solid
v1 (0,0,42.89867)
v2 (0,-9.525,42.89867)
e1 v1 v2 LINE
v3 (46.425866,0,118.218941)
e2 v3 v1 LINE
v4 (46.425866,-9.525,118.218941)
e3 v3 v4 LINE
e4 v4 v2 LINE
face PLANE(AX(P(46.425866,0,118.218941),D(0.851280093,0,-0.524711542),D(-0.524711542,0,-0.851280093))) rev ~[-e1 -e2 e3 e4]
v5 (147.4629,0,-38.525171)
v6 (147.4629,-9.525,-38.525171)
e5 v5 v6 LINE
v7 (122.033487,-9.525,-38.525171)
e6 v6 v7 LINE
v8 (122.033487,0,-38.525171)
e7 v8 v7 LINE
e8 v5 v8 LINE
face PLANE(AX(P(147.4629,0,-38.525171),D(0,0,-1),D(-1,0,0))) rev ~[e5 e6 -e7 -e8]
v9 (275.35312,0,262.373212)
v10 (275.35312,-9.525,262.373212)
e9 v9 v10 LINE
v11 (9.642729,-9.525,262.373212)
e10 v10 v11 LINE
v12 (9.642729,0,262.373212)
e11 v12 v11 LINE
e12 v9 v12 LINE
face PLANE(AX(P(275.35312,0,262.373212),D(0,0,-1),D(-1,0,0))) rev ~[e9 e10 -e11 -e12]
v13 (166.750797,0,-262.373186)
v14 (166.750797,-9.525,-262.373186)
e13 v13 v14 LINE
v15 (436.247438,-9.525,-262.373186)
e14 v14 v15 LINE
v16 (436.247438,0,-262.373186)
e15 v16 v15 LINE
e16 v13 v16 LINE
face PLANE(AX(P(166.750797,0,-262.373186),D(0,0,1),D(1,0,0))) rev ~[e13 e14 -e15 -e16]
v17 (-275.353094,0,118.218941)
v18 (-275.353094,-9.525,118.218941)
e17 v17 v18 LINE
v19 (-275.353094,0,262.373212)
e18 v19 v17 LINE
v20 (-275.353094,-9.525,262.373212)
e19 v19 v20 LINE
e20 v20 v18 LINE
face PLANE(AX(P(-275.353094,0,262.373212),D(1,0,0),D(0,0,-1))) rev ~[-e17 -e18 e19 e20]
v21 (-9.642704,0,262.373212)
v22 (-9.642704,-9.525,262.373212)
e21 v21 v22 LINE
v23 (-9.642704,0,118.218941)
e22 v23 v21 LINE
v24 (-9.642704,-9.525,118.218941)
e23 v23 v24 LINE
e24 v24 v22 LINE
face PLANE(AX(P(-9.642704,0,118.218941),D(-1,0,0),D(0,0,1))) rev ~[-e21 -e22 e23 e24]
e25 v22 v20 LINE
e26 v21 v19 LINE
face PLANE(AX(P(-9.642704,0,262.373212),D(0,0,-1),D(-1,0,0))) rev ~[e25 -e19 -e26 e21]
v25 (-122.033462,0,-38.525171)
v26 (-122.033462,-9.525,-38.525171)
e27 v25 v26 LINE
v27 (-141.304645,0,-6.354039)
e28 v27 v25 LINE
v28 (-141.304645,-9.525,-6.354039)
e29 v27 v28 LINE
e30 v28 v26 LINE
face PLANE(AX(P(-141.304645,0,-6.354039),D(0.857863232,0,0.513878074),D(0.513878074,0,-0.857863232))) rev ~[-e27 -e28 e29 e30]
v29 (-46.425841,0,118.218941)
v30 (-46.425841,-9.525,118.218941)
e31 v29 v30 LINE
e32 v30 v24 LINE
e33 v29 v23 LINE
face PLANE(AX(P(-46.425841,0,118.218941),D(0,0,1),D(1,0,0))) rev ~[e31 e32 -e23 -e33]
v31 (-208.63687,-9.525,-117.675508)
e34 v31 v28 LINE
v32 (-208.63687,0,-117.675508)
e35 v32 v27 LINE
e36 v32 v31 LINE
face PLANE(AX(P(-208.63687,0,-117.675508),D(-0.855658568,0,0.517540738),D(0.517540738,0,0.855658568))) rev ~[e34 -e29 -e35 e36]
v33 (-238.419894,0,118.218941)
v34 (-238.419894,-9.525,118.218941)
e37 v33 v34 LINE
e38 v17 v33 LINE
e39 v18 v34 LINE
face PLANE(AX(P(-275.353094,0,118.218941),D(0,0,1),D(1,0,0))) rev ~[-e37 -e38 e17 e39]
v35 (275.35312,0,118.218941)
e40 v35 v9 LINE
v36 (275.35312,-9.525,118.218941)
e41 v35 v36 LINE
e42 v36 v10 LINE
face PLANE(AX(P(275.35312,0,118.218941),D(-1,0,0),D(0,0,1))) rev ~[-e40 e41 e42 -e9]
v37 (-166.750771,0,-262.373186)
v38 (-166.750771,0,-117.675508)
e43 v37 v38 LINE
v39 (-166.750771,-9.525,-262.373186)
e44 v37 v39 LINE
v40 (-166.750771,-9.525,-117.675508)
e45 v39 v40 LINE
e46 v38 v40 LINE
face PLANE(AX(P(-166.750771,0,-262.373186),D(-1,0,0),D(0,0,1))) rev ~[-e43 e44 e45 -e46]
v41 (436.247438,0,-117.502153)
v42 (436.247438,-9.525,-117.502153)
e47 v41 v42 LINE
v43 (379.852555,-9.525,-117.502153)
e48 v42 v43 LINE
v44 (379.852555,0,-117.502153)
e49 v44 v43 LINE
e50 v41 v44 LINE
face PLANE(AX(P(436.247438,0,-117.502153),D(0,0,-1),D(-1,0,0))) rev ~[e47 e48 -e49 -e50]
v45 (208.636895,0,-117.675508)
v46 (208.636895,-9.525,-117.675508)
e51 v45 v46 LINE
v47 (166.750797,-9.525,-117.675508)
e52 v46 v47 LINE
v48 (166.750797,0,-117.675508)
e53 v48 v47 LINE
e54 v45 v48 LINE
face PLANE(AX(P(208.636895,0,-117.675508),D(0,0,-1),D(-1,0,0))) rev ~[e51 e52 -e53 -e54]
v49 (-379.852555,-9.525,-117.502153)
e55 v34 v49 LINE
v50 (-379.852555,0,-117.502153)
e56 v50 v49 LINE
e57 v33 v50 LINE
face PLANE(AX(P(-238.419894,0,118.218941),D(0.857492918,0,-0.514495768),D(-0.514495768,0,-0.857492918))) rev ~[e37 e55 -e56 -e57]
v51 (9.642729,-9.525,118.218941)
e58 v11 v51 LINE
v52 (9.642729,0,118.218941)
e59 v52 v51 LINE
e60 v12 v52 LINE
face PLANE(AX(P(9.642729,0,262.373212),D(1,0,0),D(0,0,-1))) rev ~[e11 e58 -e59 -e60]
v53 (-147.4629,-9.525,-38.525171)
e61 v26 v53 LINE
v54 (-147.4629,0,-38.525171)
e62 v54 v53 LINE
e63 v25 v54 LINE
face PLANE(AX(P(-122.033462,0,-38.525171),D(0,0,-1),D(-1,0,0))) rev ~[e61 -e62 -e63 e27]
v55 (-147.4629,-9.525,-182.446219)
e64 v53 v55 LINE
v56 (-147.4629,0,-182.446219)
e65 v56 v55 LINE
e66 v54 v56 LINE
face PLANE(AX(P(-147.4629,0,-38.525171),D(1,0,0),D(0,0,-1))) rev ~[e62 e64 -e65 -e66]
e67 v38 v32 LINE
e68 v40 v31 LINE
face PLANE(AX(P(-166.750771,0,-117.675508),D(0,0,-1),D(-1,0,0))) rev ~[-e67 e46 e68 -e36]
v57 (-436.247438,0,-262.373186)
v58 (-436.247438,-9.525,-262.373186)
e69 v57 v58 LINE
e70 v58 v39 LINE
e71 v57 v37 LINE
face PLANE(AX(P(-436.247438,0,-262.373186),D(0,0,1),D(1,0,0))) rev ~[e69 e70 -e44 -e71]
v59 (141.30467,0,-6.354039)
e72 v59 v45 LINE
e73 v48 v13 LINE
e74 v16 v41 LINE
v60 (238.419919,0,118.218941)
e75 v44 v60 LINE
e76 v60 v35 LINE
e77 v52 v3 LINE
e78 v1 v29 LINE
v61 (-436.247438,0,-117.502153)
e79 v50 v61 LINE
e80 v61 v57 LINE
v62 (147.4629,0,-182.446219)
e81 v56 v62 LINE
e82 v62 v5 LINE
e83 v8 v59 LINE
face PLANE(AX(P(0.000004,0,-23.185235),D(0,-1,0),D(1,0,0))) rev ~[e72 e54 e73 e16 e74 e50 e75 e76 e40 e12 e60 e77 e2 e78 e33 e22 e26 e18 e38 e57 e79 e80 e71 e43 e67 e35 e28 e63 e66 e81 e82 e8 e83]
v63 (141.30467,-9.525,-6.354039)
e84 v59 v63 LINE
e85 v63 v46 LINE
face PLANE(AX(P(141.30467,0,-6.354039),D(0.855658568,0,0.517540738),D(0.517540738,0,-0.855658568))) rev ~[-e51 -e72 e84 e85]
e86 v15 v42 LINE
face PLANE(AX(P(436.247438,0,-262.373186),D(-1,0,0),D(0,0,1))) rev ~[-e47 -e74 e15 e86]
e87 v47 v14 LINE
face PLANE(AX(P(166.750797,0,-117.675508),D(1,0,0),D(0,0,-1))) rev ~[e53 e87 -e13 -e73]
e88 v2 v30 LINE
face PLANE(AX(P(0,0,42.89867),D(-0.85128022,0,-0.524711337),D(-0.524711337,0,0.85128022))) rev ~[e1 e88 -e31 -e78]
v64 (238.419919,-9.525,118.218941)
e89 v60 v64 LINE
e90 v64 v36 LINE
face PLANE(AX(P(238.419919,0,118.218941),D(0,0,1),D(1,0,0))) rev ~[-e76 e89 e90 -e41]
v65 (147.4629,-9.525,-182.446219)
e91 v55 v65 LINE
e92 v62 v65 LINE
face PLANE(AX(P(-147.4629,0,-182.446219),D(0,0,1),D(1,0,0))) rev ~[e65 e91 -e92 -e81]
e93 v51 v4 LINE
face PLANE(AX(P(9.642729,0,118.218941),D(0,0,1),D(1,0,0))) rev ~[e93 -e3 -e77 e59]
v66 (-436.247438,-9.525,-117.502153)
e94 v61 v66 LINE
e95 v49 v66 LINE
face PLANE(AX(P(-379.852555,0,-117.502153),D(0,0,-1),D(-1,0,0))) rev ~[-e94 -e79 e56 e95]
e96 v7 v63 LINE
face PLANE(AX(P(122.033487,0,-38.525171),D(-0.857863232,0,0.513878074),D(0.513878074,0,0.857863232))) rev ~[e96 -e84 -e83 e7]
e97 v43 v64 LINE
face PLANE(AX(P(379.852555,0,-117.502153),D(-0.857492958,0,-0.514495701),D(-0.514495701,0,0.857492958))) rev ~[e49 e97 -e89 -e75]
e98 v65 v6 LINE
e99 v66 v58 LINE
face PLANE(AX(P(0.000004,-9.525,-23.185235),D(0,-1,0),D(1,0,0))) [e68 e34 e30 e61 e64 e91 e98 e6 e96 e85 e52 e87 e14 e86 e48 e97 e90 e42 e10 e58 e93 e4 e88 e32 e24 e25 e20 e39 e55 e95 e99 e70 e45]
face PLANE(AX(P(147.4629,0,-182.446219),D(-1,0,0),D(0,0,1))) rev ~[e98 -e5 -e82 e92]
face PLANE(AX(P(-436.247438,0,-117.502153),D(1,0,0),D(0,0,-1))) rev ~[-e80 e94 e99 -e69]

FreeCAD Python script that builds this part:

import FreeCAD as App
import Part
import Sketcher
from FreeCAD import Vector

doc = App.newDocument("Part")
params = doc.addObject("Spreadsheet::Sheet", "Params")
for row, (alias, value) in enumerate([
    ("pad1_length", "0.375 in"),
], start=1):
    params.set(f"A{row}", alias)
    params.set(f"B{row}", "=" + value)
    params.setAlias(f"B{row}", alias)

body = doc.addObject("PartDesign::Body", "Body")

# Sketch on XZ plane
sketch1 = doc.addObject("Sketcher::SketchObject", "Sketch")
body.addObject(sketch1)
sketch1.AttachmentSupport = (doc.XZ_Plane, [""])
sketch1.MapMode = "FlatFace"
sketch1.addGeometry([
    Part.LineSegment(Vector(46, 118, 0), Vector(0, 43, 0)),  # 0
    Part.LineSegment(Vector(0, 43, 0), Vector(-46, 118, 0)),  # 1
    Part.LineSegment(Vector(-46, 118, 0), Vector(-10, 118, 0)),  # 2
    Part.LineSegment(Vector(-10, 118, 0), Vector(-10, 262, 0)),  # 3
    Part.LineSegment(Vector(-10, 262, 0), Vector(-275, 262, 0)),  # 4
    Part.LineSegment(Vector(-275, 262, 0), Vector(-275, 118, 0)),  # 5
    Part.LineSegment(Vector(-275, 118, 0), Vector(-238, 118, 0)),  # 6
    Part.LineSegment(Vector(-238, 118, 0), Vector(-380, -118, 0)),  # 7
    Part.LineSegment(Vector(-380, -118, 0), Vector(-436, -118, 0)),  # 8
    Part.LineSegment(Vector(-436, -118, 0), Vector(-436, -262, 0)),  # 9
    Part.LineSegment(Vector(-436, -262, 0), Vector(-167, -262, 0)),  # 10
    Part.LineSegment(Vector(-167, -262, 0), Vector(-167, -118, 0)),  # 11
    Part.LineSegment(Vector(-167, -118, 0), Vector(-209, -118, 0)),  # 12
    Part.LineSegment(Vector(-209, -118, 0), Vector(-141, -6, 0)),  # 13
    Part.LineSegment(Vector(-141, -6, 0), Vector(-122, -39, 0)),  # 14
    Part.LineSegment(Vector(-122, -39, 0), Vector(-147, -39, 0)),  # 15
    Part.LineSegment(Vector(-147, -39, 0), Vector(-147, -182, 0)),  # 16
    Part.LineSegment(Vector(-147, -182, 0), Vector(147, -182, 0)),  # 17
    Part.LineSegment(Vector(147, -182, 0), Vector(147, -39, 0)),  # 18
    Part.LineSegment(Vector(147, -39, 0), Vector(122, -39, 0)),  # 19
    Part.LineSegment(Vector(122, -39, 0), Vector(141, -6, 0)),  # 20
    Part.LineSegment(Vector(141, -6, 0), Vector(209, -118, 0)),  # 21
    Part.LineSegment(Vector(209, -118, 0), Vector(167, -118, 0)),  # 22
    Part.LineSegment(Vector(167, -118, 0), Vector(167, -262, 0)),  # 23
    Part.LineSegment(Vector(167, -262, 0), Vector(436, -262, 0)),  # 24
    Part.LineSegment(Vector(436, -262, 0), Vector(436, -118, 0)),  # 25
    Part.LineSegment(Vector(436, -118, 0), Vector(380, -118, 0)),  # 26
    Part.LineSegment(Vector(380, -118, 0), Vector(238, 118, 0)),  # 27
    Part.LineSegment(Vector(238, 118, 0), Vector(275, 118, 0)),  # 28
    Part.LineSegment(Vector(275, 118, 0), Vector(275, 262, 0)),  # 29
    Part.LineSegment(Vector(275, 262, 0), Vector(10, 262, 0)),  # 30
    Part.LineSegment(Vector(10, 262, 0), Vector(10, 118, 0)),  # 31
    Part.LineSegment(Vector(10, 118, 0), Vector(46, 118, 0)),  # 32
], False)
sketch1.addConstraint([
    Sketcher.Constraint("Coincident", 0, 2, 1, 1),
    Sketcher.Constraint("Coincident", 1, 2, 2, 1),
    Sketcher.Constraint("Coincident", 2, 2, 3, 1),
    Sketcher.Constraint("Coincident", 3, 2, 4, 1),
    Sketcher.Constraint("Coincident", 4, 2, 5, 1),
    Sketcher.Constraint("Coincident", 5, 2, 6, 1),
    Sketcher.Constraint("Coincident", 6, 2, 7, 1),
    Sketcher.Constraint("Coincident", 7, 2, 8, 1),
    Sketcher.Constraint("Coincident", 8, 2, 9, 1),
    Sketcher.Constraint("Coincident", 9, 2, 10, 1),
    Sketcher.Constraint("Coincident", 10, 2, 11, 1),
    Sketcher.Constraint("Coincident", 11, 2, 12, 1),
    Sketcher.Constraint("Coincident", 12, 2, 13, 1),
    Sketcher.Constraint("Coincident", 13, 2, 14, 1),
    Sketcher.Constraint("Coincident", 14, 2, 15, 1),
    Sketcher.Constraint("Coincident", 15, 2, 16, 1),
    Sketcher.Constraint("Coincident", 16, 2, 17, 1),
    Sketcher.Constraint("Coincident", 17, 2, 18, 1),
    Sketcher.Constraint("Coincident", 18, 2, 19, 1),
    Sketcher.Constraint("Coincident", 19, 2, 20, 1),
    Sketcher.Constraint("Coincident", 20, 2, 21, 1),
    Sketcher.Constraint("Coincident", 21, 2, 22, 1),
    Sketcher.Constraint("Coincident", 22, 2, 23, 1),
    Sketcher.Constraint("Coincident", 23, 2, 24, 1),
    Sketcher.Constraint("Coincident", 24, 2, 25, 1),
    Sketcher.Constraint("Coincident", 25, 2, 26, 1),
    Sketcher.Constraint("Coincident", 26, 2, 27, 1),
    Sketcher.Constraint("Coincident", 27, 2, 28, 1),
    Sketcher.Constraint("Coincident", 28, 2, 29, 1),
    Sketcher.Constraint("Coincident", 29, 2, 30, 1),
    Sketcher.Constraint("Coincident", 30, 2, 31, 1),
    Sketcher.Constraint("Coincident", 31, 2, 32, 1),
    Sketcher.Constraint("Coincident", 32, 2, 0, 1),
    Sketcher.Constraint("Horizontal", 2),
    Sketcher.Constraint("Vertical", 3),
    Sketcher.Constraint("Horizontal", 4),
    Sketcher.Constraint("Vertical", 5),
    Sketcher.Constraint("Horizontal", 6),
    Sketcher.Constraint("Horizontal", 8),
    Sketcher.Constraint("Vertical", 9),
    Sketcher.Constraint("Horizontal", 10),
    Sketcher.Constraint("Vertical", 11),
    Sketcher.Constraint("Horizontal", 12),
    Sketcher.Constraint("Horizontal", 15),
    Sketcher.Constraint("Vertical", 16),
    Sketcher.Constraint("Horizontal", 17),
    Sketcher.Constraint("Vertical", 18),
    Sketcher.Constraint("Horizontal", 19),
    Sketcher.Constraint("Horizontal", 22),
    Sketcher.Constraint("Vertical", 23),
    Sketcher.Constraint("Horizontal", 24),
    Sketcher.Constraint("Vertical", 25),
    Sketcher.Constraint("Horizontal", 26),
    Sketcher.Constraint("Horizontal", 28),
    Sketcher.Constraint("Vertical", 29),
    Sketcher.Constraint("Horizontal", 30),
    Sketcher.Constraint("Vertical", 31),
    Sketcher.Constraint("Horizontal", 32),
    Sketcher.Constraint("Symmetric", 15, 2, 18, 2, -2),
    Sketcher.Constraint("Symmetric", 9, 2, 24, 2, -2),
    Sketcher.Constraint("Symmetric", 7, 2, 26, 2, -2),
    Sketcher.Constraint("PointOnObject", 0, 2, -2),
    Sketcher.Constraint("Horizontal", 2, 2, 5, 2),
    Sketcher.Constraint("Horizontal", 13, 2, 20, 2),
    Sketcher.Constraint("Horizontal", 12, 2, 21, 2),
    Sketcher.Constraint("Horizontal", 6, 2, 27, 2),
    Sketcher.Constraint("Horizontal", 4, 2, 29, 2),
    Sketcher.Constraint("Horizontal", 28, 2, 31, 2),
    Sketcher.Constraint("Equal", 12, 22),
    Sketcher.Constraint("Equal", 6, 28),
    Sketcher.Constraint("Equal", 4, 30),
    Sketcher.Constraint("Equal", 2, 32),
    Sketcher.Constraint("Equal", 14, 20),
    Sketcher.Constraint("Equal", 13, 21),
    Sketcher.Constraint("DistanceX", 6, 1, 6, 2, 36.9332),
    Sketcher.Constraint("DistanceX", 12, 2, 12, 1, 41.886099),
    Sketcher.Constraint("DistanceX", 17, 1, 17, 2, 294.9258),
    Sketcher.Constraint("DistanceX", 4, 2, 4, 1, 265.71039),
    Sketcher.Constraint("DistanceX", 24, 1, 24, 2, 269.496641),
    Sketcher.Constraint("DistanceY", 3, 1, 3, 2, 144.154271),
    Sketcher.Constraint("DistanceY", 11, 1, 11, 2, 144.697678),
    Sketcher.Constraint("DistanceY", 16, 2, 16, 1, 143.921048),
    Sketcher.Constraint("Distance", 1, 88.478822),
    Sketcher.Constraint("Distance", 13, 130.100338),
    Sketcher.Constraint("Distance", 14, 37.50147),
    Sketcher.Constraint("Distance", 27, 274.895661),
    Sketcher.Constraint("DistanceX", 2, 1, 2, 2, 36.783137),
    Sketcher.Constraint("DistanceX", 8, 2, 8, 1, 56.394883),
    Sketcher.Constraint("DistanceX", 10, 1, 10, 2, 269.496667),
    Sketcher.Constraint("DistanceX", 15, 2, 15, 1, 25.429438),
    Sketcher.Constraint("DistanceY", 9, 2, 9, 1, 144.871033),
    Sketcher.Constraint("DistanceY", -1, 1, 0, 2, 42.89867),
    Sketcher.Constraint("DistanceX", 1, 2, -1, 1, 46.425841),
    Sketcher.Constraint("DistanceX", 8, 2, -1, 1, 436.247438),
    Sketcher.Constraint("DistanceY", 13, 2, -1, 1, 6.354039),
    Sketcher.Constraint("DistanceY", 14, 2, -1, 1, 38.525171),
])
pad1 = doc.addObject("PartDesign::Pad", "Pad")
body.addObject(pad1)
pad1.Profile = sketch1
pad1.setExpression("Length", "Params.pad1_length")

doc.recompute()
